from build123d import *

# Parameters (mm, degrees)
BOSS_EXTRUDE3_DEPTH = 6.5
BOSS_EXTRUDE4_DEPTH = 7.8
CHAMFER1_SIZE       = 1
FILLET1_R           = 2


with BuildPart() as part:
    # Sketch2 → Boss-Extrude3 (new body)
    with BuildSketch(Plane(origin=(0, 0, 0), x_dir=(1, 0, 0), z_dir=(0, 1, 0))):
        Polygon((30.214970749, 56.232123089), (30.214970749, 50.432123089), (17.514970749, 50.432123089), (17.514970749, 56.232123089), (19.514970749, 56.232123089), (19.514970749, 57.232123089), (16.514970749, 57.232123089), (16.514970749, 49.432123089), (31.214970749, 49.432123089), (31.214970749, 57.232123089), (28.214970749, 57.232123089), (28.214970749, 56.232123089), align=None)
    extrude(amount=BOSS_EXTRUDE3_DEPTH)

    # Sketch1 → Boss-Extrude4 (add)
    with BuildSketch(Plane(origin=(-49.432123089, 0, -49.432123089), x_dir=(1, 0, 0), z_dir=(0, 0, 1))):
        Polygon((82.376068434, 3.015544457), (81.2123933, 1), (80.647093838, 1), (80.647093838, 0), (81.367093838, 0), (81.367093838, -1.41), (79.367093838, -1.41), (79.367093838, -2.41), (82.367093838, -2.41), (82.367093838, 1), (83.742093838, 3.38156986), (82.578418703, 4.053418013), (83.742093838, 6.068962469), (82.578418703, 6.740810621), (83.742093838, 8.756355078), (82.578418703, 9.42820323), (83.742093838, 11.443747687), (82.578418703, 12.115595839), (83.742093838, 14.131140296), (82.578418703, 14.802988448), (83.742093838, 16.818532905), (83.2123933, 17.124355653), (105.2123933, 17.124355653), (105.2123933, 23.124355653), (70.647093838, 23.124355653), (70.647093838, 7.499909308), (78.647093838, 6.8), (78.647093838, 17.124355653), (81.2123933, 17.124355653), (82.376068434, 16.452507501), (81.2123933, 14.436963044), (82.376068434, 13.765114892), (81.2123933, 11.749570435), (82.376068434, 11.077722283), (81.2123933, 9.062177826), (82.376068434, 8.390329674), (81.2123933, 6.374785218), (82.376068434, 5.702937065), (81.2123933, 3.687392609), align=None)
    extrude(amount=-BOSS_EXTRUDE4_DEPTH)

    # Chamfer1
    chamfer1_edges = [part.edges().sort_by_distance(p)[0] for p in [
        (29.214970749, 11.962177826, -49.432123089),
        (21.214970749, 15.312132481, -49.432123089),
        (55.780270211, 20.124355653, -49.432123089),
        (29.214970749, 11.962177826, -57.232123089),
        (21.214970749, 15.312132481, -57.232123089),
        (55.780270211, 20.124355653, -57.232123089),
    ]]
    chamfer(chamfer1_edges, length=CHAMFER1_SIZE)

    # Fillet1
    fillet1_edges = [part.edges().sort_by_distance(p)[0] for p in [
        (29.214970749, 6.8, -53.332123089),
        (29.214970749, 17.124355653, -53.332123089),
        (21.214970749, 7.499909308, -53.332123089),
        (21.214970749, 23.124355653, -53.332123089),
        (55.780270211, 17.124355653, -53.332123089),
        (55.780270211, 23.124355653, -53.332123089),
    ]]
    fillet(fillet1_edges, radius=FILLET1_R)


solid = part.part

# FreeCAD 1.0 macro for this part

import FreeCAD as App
import Part
import Sketcher
Q = App.Units.Quantity


def edges_at(feature, points):
    """Names of the edges that pass closest to the given points."""
    edges = feature.Shape.Edges
    near = lambda p: min(range(len(edges)), key=lambda i: edges[i].distToShape(Part.Vertex(*p))[0])
    return sorted({f"Edge{near(p) + 1}" for p in points})


def add_polygon(sketch, points):
    """Adds a closed chain of lines whose ends are joined by coincident constraints."""
    first, n = sketch.GeometryCount, len(points)
    for a, b in zip(points, points[1:] + points[:1]):
        sketch.addGeometry(Part.LineSegment(App.Vector(*a, 0), App.Vector(*b, 0)), False)
    for i in range(n):
        sketch.addConstraint(Sketcher.Constraint("Coincident", first + i, 2, first + (i + 1) % n, 1))

doc = App.newDocument("Part")
body = doc.addObject("PartDesign::Body", "Body")

# Sketch on XZ plane
sketch1 = doc.addObject("Sketcher::SketchObject", "Sketch")
body.addObject(sketch1)
sketch1.AttachmentSupport = (doc.XZ_Plane, [""])
sketch1.MapMode = "FlatFace"
add_polygon(sketch1, [(30.214971, -56.232123), (30.214971, -50.432123), (17.514971, -50.432123), (17.514971, -56.232123), (19.514971, -56.232123), (19.514971, -57.232123), (16.514971, -57.232123), (16.514971, -49.432123), (31.214971, -49.432123), (31.214971, -57.232123), (28.214971, -57.232123), (28.214971, -56.232123)])  # lines 0-11
sketch1.addConstraint(Sketcher.Constraint("Vertical", 0))
sketch1.addConstraint(Sketcher.Constraint("Horizontal", 1))
sketch1.addConstraint(Sketcher.Constraint("Vertical", 2))
sketch1.addConstraint(Sketcher.Constraint("Horizontal", 3))
sketch1.addConstraint(Sketcher.Constraint("Vertical", 4))
sketch1.addConstraint(Sketcher.Constraint("Horizontal", 5))
sketch1.addConstraint(Sketcher.Constraint("Vertical", 6))
sketch1.addConstraint(Sketcher.Constraint("Horizontal", 7))
sketch1.addConstraint(Sketcher.Constraint("Vertical", 8))
sketch1.addConstraint(Sketcher.Constraint("Horizontal", 9))
sketch1.addConstraint(Sketcher.Constraint("Vertical", 10))
sketch1.addConstraint(Sketcher.Constraint("Horizontal", 11))
sketch1.addConstraint(Sketcher.Constraint("Horizontal", 5, 2, 8, 2))
sketch1.addConstraint(Sketcher.Constraint("Horizontal", 3, 2, 10, 2))
sketch1.addConstraint(Sketcher.Constraint("Equal", 5, 9))
sketch1.addConstraint(Sketcher.Constraint("Equal", 3, 11))
sketch1.addConstraint(Sketcher.Constraint("DistanceX", 3, 1, 3, 2, 2.0))
sketch1.addConstraint(Sketcher.Constraint("DistanceX", 5, 2, 5, 1, 3.0))
sketch1.addConstraint(Sketcher.Constraint("DistanceY", 4, 2, 4, 1, 1.0))
sketch1.addConstraint(Sketcher.Constraint("DistanceX", 1, 2, 1, 1, 12.7))
sketch1.addConstraint(Sketcher.Constraint("DistanceY", 0, 1, 0, 2, 5.8))
sketch1.addConstraint(Sketcher.Constraint("DistanceY", 6, 1, 6, 2, 7.8))
sketch1.addConstraint(Sketcher.Constraint("DistanceX", -1, 1, 0, 2, 30.214971))
sketch1.addConstraint(Sketcher.Constraint("DistanceY", 0, 2, -1, 1, 50.432123))
pad1 = doc.addObject("PartDesign::Pad", "Pad")
body.addObject(pad1)
pad1.Profile = sketch1
pad1.Length = 6.5
pad1.Reversed = True

# Sketch on XY plane
sketch2 = doc.addObject("Sketcher::SketchObject", "Sketch001")
body.addObject(sketch2)
sketch2.AttachmentSupport = (doc.XY_Plane, [""])
sketch2.MapMode = "FlatFace"
sketch2.AttachmentOffset = App.Placement(App.Vector(0, 0, -49.432123), App.Rotation())
add_polygon(sketch2, [(32.943945, 3.015544), (31.78027, 1), (31.214971, 1), (31.214971, 0), (31.934971, 0), (31.934971, -1.41), (29.934971, -1.41), (29.934971, -2.41), (32.934971, -2.41), (32.934971, 1), (34.309971, 3.38157), (33.146296, 4.053418), (34.309971, 6.068962), (33.146296, 6.740811), (34.309971, 8.756355), (33.146296, 9.428203), (34.309971, 11.443748), (33.146296, 12.115596), (34.309971, 14.13114), (33.146296, 14.802988), (34.309971, 16.818533), (33.78027, 17.124356), (55.78027, 17.124356), (55.78027, 23.124356), (21.214971, 23.124356), (21.214971, 7.499909), (29.214971, 6.8), (29.214971, 17.124356), (31.78027, 17.124356), (32.943945, 16.452508), (31.78027, 14.436963), (32.943945, 13.765115), (31.78027, 11.74957), (32.943945, 11.077722), (31.78027, 9.062178), (32.943945, 8.39033), (31.78027, 6.374785), (32.943945, 5.702937), (31.78027, 3.687393)])  # lines 0-38
sketch2.addConstraint(Sketcher.Constraint("Horizontal", 1))
sketch2.addConstraint(Sketcher.Constraint("Vertical", 2))
sketch2.addConstraint(Sketcher.Constraint("Horizontal", 3))
sketch2.addConstraint(Sketcher.Constraint("Vertical", 4))
sketch2.addConstraint(Sketcher.Constraint("Horizontal", 5))
sketch2.addConstraint(Sketcher.Constraint("Vertical", 6))
sketch2.addConstraint(Sketcher.Constraint("Horizontal", 7))
sketch2.addConstraint(Sketcher.Constraint("Vertical", 8))
sketch2.addConstraint(Sketcher.Constraint("Horizontal", 21))
sketch2.addConstraint(Sketcher.Constraint("Vertical", 22))
sketch2.addConstraint(Sketcher.Constraint("Horizontal", 23))
sketch2.addConstraint(Sketcher.Constraint("Vertical", 24))
sketch2.addConstraint(Sketcher.Constraint("Vertical", 26))
sketch2.addConstraint(Sketcher.Constraint("Horizontal", 27))
sketch2.addConstraint(Sketcher.Constraint("PointOnObject", 2, 2, -1))
sketch2.addConstraint(Sketcher.Constraint("Parallel", 0, 9))
sketch2.addConstraint(Sketcher.Constraint("Perpendicular", 9, 10))
sketch2.addConstraint(Sketcher.Constraint("Perpendicular", 10, 11))
sketch2.addConstraint(Sketcher.Constraint("Perpendicular", 11, 12))
sketch2.addConstraint(Sketcher.Constraint("Perpendicular", 12, 13))
sketch2.addConstraint(Sketcher.Constraint("Perpendicular", 13, 14))
sketch2.addConstraint(Sketcher.Constraint("Perpendicular", 14, 15))
sketch2.addConstraint(Sketcher.Constraint("Perpendicular", 15, 16))
sketch2.addConstraint(Sketcher.Constraint("Perpendicular", 16, 17))
sketch2.addConstraint(Sketcher.Constraint("Perpendicular", 17, 18))
sketch2.addConstraint(Sketcher.Constraint("Perpendicular", 18, 19))
sketch2.addConstraint(Sketcher.Constraint("Perpendicular", 19, 20))
sketch2.addConstraint(Sketcher.Constraint("Parallel", 20, 28))
sketch2.addConstraint(Sketcher.Constraint("Perpendicular", 28, 29))
sketch2.addConstraint(Sketcher.Constraint("Perpendicular", 29, 30))
sketch2.addConstraint(Sketcher.Constraint("Perpendicular", 30, 31))
sketch2.addConstraint(Sketcher.Constraint("Perpendicular", 31, 32))
sketch2.addConstraint(Sketcher.Constraint("Perpendicular", 32, 33))
sketch2.addConstraint(Sketcher.Constraint("Perpendicular", 33, 34))
sketch2.addConstraint(Sketcher.Constraint("Perpendicular", 34, 35))
sketch2.addConstraint(Sketcher.Constraint("Perpendicular", 35, 36))
sketch2.addConstraint(Sketcher.Constraint("Perpendicular", 36, 37))
sketch2.addConstraint(Sketcher.Constraint("Perpendicular", 37, 38))
sketch2.addConstraint(Sketcher.Constraint("Horizontal", 1, 2, 8, 2))
sketch2.addConstraint(Sketcher.Constraint("Horizontal", 21, 2, 26, 2))
sketch2.addConstraint(Sketcher.Constraint("Vertical", 9, 2, 11, 2))
sketch2.addConstraint(Sketcher.Constraint("Vertical", 10, 2, 12, 2))
sketch2.addConstraint(Sketcher.Constraint("Vertical", 11, 2, 13, 2))
sketch2.addConstraint(Sketcher.Constraint("Vertical", 12, 2, 14, 2))
sketch2.addConstraint(Sketcher.Constraint("Vertical", 13, 2, 15, 2))
sketch2.addConstraint(Sketcher.Constraint("Vertical", 14, 2, 16, 2))
sketch2.addConstraint(Sketcher.Constraint("Vertical", 15, 2, 17, 2))
sketch2.addConstraint(Sketcher.Constraint("Vertical", 16, 2, 18, 2))
sketch2.addConstraint(Sketcher.Constraint("Vertical", 17, 2, 19, 2))
sketch2.addConstraint(Sketcher.Constraint("Vertical", 0, 2, 27, 2))
sketch2.addConstraint(Sketcher.Constraint("Vertical", 27, 2, 29, 2))
sketch2.addConstraint(Sketcher.Constraint("Vertical", 28, 2, 30, 2))
sketch2.addConstraint(Sketcher.Constraint("Vertical", 29, 2, 31, 2))
sketch2.addConstraint(Sketcher.Constraint("Vertical", 30, 2, 32, 2))
sketch2.addConstraint(Sketcher.Constraint("Vertical", 31, 2, 33, 2))
sketch2.addConstraint(Sketcher.Constraint("Vertical", 32, 2, 34, 2))
sketch2.addConstraint(Sketcher.Constraint("Vertical", 33, 2, 35, 2))
sketch2.addConstraint(Sketcher.Constraint("Vertical", 34, 2, 36, 2))
sketch2.addConstraint(Sketcher.Constraint("Vertical", 35, 2, 37, 2))
sketch2.addConstraint(Sketcher.Constraint("Vertical", 36, 2, 38, 2))
sketch2.addConstraint(Sketcher.Constraint("Equal", 2, 6))
sketch2.addConstraint(Sketcher.Constraint("Equal", 0, 11))
sketch2.addConstraint(Sketcher.Constraint("DistanceX", 5, 2, 5, 1, 2.0))
sketch2.addConstraint(Sketcher.Constraint("DistanceX", 7, 1, 7, 2, 3.0))
sketch2.addConstraint(Sketcher.Constraint("DistanceX", 21, 1, 21, 2, 22.0))
sketch2.addConstraint(Sketcher.Constraint("DistanceY", 2, 2, 2, 1, 1.0))
sketch2.addConstraint(Sketcher.Constraint("DistanceY", 22, 1, 22, 2, 6.0))
sketch2.addConstraint(Sketcher.Constraint("Angle", 0, Q("-120 deg")))
sketch2.addConstraint(Sketcher.Constraint("Angle", 25, Q("-5 deg")))
sketch2.addConstraint(Sketcher.Constraint("DistanceX", 24, 2, 1, 2, 10.0))
sketch2.addConstraint(Sketcher.Constraint("DistanceX", 27, 2, 20, 2, 2.0))
sketch2.addConstraint(Sketcher.Constraint("DistanceX", 3, 1, 3, 2, 0.72))
sketch2.addConstraint(Sketcher.Constraint("DistanceY", 4, 2, 4, 1, 1.41))
sketch2.addConstraint(Sketcher.Constraint("DistanceY", -1, 1, 25, 2, 6.8))
sketch2.addConstraint(Sketcher.Constraint("Distance", 9, 2.75))
sketch2.addConstraint(Sketcher.Constraint("DistanceX", 1, 2, 1, 1, 0.565299))
sketch2.addConstraint(Sketcher.Constraint("DistanceX", 27, 1, 27, 2, 2.565299))
sketch2.addConstraint(Sketcher.Constraint("DistanceX", -1, 1, 0, 2, 31.78027))
pad2 = doc.addObject("PartDesign::Pad", "Pad001")
body.addObject(pad2)
pad2.Profile = sketch2
pad2.Length = 7.8
pad2.Reversed = True
doc.recompute()

chamfer = doc.addObject("PartDesign::Chamfer", "Chamfer")
body.addObject(chamfer)
chamfer.Base = (pad2, edges_at(pad2, [
    (29.215, 11.962, -49.432),
    (21.215, 15.312, -49.432),
    (55.78, 20.124, -49.432),
    (29.215, 11.962, -57.232),
    (21.215, 15.312, -57.232),
    (55.78, 20.124, -57.232),
]))
chamfer.Size = 1
doc.recompute()

fillet = doc.addObject("PartDesign::Fillet", "Fillet")
body.addObject(fillet)
fillet.Base = (chamfer, edges_at(chamfer, [
    (29.215, 6.8, -53.332),
    (29.215, 17.124, -53.332),
    (21.215, 7.5, -53.332),
    (21.215, 23.124, -53.332),
    (55.78, 17.124, -53.332),
    (55.78, 23.124, -53.332),
]))
fillet.Radius = 2

doc.recompute()
